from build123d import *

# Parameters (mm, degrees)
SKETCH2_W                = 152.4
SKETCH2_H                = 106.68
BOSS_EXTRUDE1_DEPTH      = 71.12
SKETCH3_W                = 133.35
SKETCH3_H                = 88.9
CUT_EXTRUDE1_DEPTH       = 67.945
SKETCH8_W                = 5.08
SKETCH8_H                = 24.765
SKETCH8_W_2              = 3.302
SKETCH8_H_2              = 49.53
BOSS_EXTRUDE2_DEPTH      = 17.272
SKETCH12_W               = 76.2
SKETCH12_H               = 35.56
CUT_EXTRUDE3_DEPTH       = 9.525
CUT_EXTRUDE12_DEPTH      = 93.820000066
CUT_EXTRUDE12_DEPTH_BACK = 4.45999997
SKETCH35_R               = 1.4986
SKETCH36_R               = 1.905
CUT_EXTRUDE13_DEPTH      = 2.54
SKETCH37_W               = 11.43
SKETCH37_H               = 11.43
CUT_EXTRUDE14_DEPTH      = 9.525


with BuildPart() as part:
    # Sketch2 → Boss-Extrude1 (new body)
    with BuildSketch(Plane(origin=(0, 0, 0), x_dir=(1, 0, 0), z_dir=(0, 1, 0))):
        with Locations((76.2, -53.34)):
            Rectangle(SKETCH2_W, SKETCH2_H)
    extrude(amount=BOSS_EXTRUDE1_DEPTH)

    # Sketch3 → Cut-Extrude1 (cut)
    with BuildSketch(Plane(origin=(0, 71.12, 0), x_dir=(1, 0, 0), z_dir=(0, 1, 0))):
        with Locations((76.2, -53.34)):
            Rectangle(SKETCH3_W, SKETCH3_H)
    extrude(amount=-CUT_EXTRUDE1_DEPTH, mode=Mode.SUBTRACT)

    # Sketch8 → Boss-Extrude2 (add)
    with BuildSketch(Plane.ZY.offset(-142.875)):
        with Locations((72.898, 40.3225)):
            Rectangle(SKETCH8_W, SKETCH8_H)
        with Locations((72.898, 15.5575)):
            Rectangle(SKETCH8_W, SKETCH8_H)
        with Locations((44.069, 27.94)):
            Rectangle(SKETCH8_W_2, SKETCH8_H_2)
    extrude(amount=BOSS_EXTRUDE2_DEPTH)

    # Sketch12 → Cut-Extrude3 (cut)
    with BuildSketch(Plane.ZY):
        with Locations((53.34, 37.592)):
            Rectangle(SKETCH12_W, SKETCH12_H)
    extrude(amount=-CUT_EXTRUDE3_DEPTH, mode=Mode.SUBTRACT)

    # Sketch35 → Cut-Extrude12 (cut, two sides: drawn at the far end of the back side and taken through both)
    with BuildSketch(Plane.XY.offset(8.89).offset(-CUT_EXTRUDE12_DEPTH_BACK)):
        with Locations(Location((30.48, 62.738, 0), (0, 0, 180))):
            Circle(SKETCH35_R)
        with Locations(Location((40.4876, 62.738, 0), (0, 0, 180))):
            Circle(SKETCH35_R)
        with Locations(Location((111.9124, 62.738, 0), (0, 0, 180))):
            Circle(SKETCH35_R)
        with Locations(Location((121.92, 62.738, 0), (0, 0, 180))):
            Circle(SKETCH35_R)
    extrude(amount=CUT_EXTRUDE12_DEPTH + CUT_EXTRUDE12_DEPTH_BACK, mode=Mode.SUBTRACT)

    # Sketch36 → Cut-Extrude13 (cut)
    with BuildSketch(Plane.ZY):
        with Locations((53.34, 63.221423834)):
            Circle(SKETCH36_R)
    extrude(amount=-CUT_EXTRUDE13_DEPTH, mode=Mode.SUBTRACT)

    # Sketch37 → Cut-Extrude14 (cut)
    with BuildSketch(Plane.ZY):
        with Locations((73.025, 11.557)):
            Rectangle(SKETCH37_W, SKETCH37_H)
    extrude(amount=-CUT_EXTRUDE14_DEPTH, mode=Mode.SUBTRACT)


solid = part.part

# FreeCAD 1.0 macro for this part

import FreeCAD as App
import Part
import Sketcher
from FreeCAD import Vector
Q = App.Units.Quantity


def add_polygon(sketch, points):
    """Adds a closed chain of lines whose ends are joined by coincident constraints."""
    first, n = sketch.GeometryCount, len(points)
    for a, b in zip(points, points[1:] + points[:1]):
        sketch.addGeometry(Part.LineSegment(App.Vector(*a, 0), App.Vector(*b, 0)), False)
    for i in range(n):
        sketch.addConstraint(Sketcher.Constraint("Coincident", first + i, 2, first + (i + 1) % n, 1))

doc = App.newDocument("Part")
body = doc.addObject("PartDesign::Body", "Body")

# Sketch on XZ plane
sketch1 = doc.addObject("Sketcher::SketchObject", "Sketch")
body.addObject(sketch1)
sketch1.AttachmentSupport = (doc.XZ_Plane, [""])
sketch1.MapMode = "FlatFace"
add_polygon(sketch1, [(0, 0), (0, 106.68), (152.4, 106.68), (152.4, 0)])  # lines 0-3
sketch1.addConstraint([
    Sketcher.Constraint("Vertical", 0),
    Sketcher.Constraint("Horizontal", 1),
    Sketcher.Constraint("Vertical", 2),
    Sketcher.Constraint("Horizontal", 3),
    Sketcher.Constraint("Coincident", 3, 2, -1, 1),
    Sketcher.Constraint("DistanceX", 1, 1, 1, 2, Q("6 in")),
    Sketcher.Constraint("DistanceY", 0, 1, 0, 2, Q("4.2 in")),
])
pad1 = doc.addObject("PartDesign::Pad", "Pad")
body.addObject(pad1)
pad1.Profile = sketch1
pad1.Length = Q("2.8 in")
pad1.Reversed = True

# Sketch on XZ plane
sketch2 = doc.addObject("Sketcher::SketchObject", "Sketch001")
body.addObject(sketch2)
sketch2.AttachmentSupport = (doc.XZ_Plane, [""])
sketch2.MapMode = "FlatFace"
sketch2.AttachmentOffset = App.Placement(Vector(0, 0, -2.8 * 25.4), App.Rotation())
add_polygon(sketch2, [(9.525, 8.89), (9.525, 97.79), (142.875, 97.79), (142.875, 8.89)])  # lines 0-3
sketch2.addConstraint([
    Sketcher.Constraint("Vertical", 0),
    Sketcher.Constraint("Horizontal", 1),
    Sketcher.Constraint("Vertical", 2),
    Sketcher.Constraint("Horizontal", 3),
    Sketcher.Constraint("DistanceY", 0, 1, 0, 2, Q("3.5 in")),
    Sketcher.Constraint("DistanceX", 1, 1, 1, 2, Q("5.25 in")),
    Sketcher.Constraint("DistanceY", -1, 1, 0, 2, Q("3.85 in")),
    Sketcher.Constraint("DistanceX", -1, 1, 0, 2, Q("0.375 in")),
])
pocket1 = doc.addObject("PartDesign::Pocket", "Pocket")
body.addObject(pocket1)
pocket1.Profile = sketch2
pocket1.Length = Q("2.675 in")
pocket1.Reversed = True

# Sketch on YZ plane
sketch3 = doc.addObject("Sketcher::SketchObject", "Sketch002")
body.addObject(sketch3)
sketch3.AttachmentSupport = (doc.YZ_Plane, [""])
sketch3.MapMode = "FlatFace"
sketch3.AttachmentOffset = App.Placement(Vector(0, 0, 5.625 * 25.4), App.Rotation())
add_polygon(sketch3, [(52.705, 70.358), (3.175, 70.358), (3.175, 75.438), (52.705, 75.438)])  # lines 0-3
add_polygon(sketch3, [(52.705, 42.418), (3.175, 42.418), (3.175, 45.72), (52.705, 45.72)])  # lines 4-7
sketch3.addConstraint([
    Sketcher.Constraint("Horizontal", 0),
    Sketcher.Constraint("Vertical", 1),
    Sketcher.Constraint("Horizontal", 2),
    Sketcher.Constraint("Vertical", 3),
    Sketcher.Constraint("Horizontal", 4),
    Sketcher.Constraint("Vertical", 5),
    Sketcher.Constraint("Horizontal", 6),
    Sketcher.Constraint("Vertical", 7),
    Sketcher.Constraint("Vertical", 1, 2, 4, 2),
    Sketcher.Constraint("Vertical", 3, 2, 6, 2),
    Sketcher.Constraint("DistanceY", 1, 1, 1, 2, Q("0.2 in")),
    Sketcher.Constraint("DistanceX", 0, 2, 0, 1, Q("1.95 in")),
    Sketcher.Constraint("DistanceY", 5, 1, 5, 2, Q("0.13 in")),
    Sketcher.Constraint("DistanceY", -1, 1, 5, 2, Q("1.8 in")),
    Sketcher.Constraint("DistanceY", 4, 2, 0, 2, Q("1.1 in")),
    Sketcher.Constraint("DistanceX", -1, 1, 0, 2, Q("0.125 in")),
])
pad2 = doc.addObject("PartDesign::Pad", "Pad001")
body.addObject(pad2)
pad2.Profile = sketch3
pad2.Length = Q("0.68 in")
pad2.Reversed = True

# Sketch on YZ plane
sketch4 = doc.addObject("Sketcher::SketchObject", "Sketch003")
body.addObject(sketch4)
sketch4.AttachmentSupport = (doc.YZ_Plane, [""])
sketch4.MapMode = "FlatFace"
add_polygon(sketch4, [(55.372, 15.24), (19.812, 15.24), (19.812, 91.44), (55.372, 91.44)])  # lines 0-3
sketch4.addConstraint([
    Sketcher.Constraint("Horizontal", 0),
    Sketcher.Constraint("Vertical", 1),
    Sketcher.Constraint("Horizontal", 2),
    Sketcher.Constraint("Vertical", 3),
    Sketcher.Constraint("DistanceY", 1, 1, 1, 2, Q("3 in")),
    Sketcher.Constraint("DistanceX", 0, 2, 0, 1, Q("1.4 in")),
    Sketcher.Constraint("DistanceY", -1, 1, 0, 2, Q("0.6 in")),
    Sketcher.Constraint("DistanceX", -1, 1, 0, 2, Q("0.78 in")),
])
pocket2 = doc.addObject("PartDesign::Pocket", "Pocket001")
body.addObject(pocket2)
pocket2.Profile = sketch4
pocket2.Length = Q("0.375 in")
pocket2.Reversed = True

# Sketch on XY plane
sketch5 = doc.addObject("Sketcher::SketchObject", "Sketch004")
body.addObject(sketch5)
sketch5.AttachmentSupport = (doc.XY_Plane, [""])
sketch5.MapMode = "FlatFace"
sketch5.AttachmentOffset = App.Placement(Vector(0, 0, 0.35 * 25.4), App.Rotation())
sketch5.addGeometry([
    Part.Circle(Vector(30.48, 62.738, 0), Vector(0, 0, 1), 1.4986),
    Part.Circle(Vector(40.4876, 62.738, 0), Vector(0, 0, 1), 1.4986),
    Part.Circle(Vector(111.9124, 62.738, 0), Vector(0, 0, 1), 1.4986),
    Part.Circle(Vector(121.92, 62.738, 0), Vector(0, 0, 1), 1.4986),
], False)
sketch5.addConstraint([
    Sketcher.Constraint("Equal", 0, 1),
    Sketcher.Constraint("Equal", 1, 2),
    Sketcher.Constraint("Equal", 2, 3),
    Sketcher.Constraint("Horizontal", 0, 3, 1, 3),
    Sketcher.Constraint("Horizontal", 1, 3, 2, 3),
    Sketcher.Constraint("Horizontal", 2, 3, 3, 3),
    Sketcher.Constraint("Diameter", 0, Q("0.118 in")),
    Sketcher.Constraint("DistanceX", -1, 1, 0, 3, Q("1.2 in")),
    Sketcher.Constraint("DistanceX", -1, 1, 3, 3, Q("4.8 in")),
    Sketcher.Constraint("DistanceY", -1, 1, 0, 3, Q("2.47 in")),
    Sketcher.Constraint("DistanceX", -1, 1, 1, 3, Q("1.594 in")),
    Sketcher.Constraint("DistanceX", -1, 1, 2, 3, Q("4.406 in")),
])
pocket3 = doc.addObject("PartDesign::Pocket", "Pocket002")
body.addObject(pocket3)
pocket3.Profile = sketch5
pocket3.Type = "TwoLengths"
pocket3.Length = 93.82
pocket3.Length2 = 4.46
pocket3.Reversed = True

# Sketch on YZ plane
sketch6 = doc.addObject("Sketcher::SketchObject", "Sketch005")
body.addObject(sketch6)
sketch6.AttachmentSupport = (doc.YZ_Plane, [""])
sketch6.MapMode = "FlatFace"
sketch6.addGeometry(Part.Circle(Vector(63.221424, 53.34, 0), Vector(0, 0, 1), 1.905), False)
sketch6.addConstraint([
    Sketcher.Constraint("Diameter", 0, Q("0.15 in")),
    Sketcher.Constraint("DistanceY", -1, 1, 0, 3, Q("2.1 in")),
    Sketcher.Constraint("DistanceX", -1, 1, 0, 3, 63.221424),
])
pocket4 = doc.addObject("PartDesign::Pocket", "Pocket003")
body.addObject(pocket4)
pocket4.Profile = sketch6
pocket4.Length = Q("0.1 in")
pocket4.Reversed = True

# Sketch on YZ plane
sketch7 = doc.addObject("Sketcher::SketchObject", "Sketch006")
body.addObject(sketch7)
sketch7.AttachmentSupport = (doc.YZ_Plane, [""])
sketch7.MapMode = "FlatFace"
add_polygon(sketch7, [(17.272, 67.31), (5.842, 67.31), (5.842, 78.74), (17.272, 78.74)])  # lines 0-3
sketch7.addConstraint([
    Sketcher.Constraint("Horizontal", 0),
    Sketcher.Constraint("Vertical", 1),
    Sketcher.Constraint("Horizontal", 2),
    Sketcher.Constraint("Vertical", 3),
    Sketcher.Constraint("Equal", 2, 1),
    Sketcher.Constraint("DistanceX", 0, 2, 0, 1, Q("0.45 in")),
    Sketcher.Constraint("DistanceY", -1, 1, 1, 2, Q("3.1 in")),
    Sketcher.Constraint("DistanceX", -1, 1, 0, 2, Q("0.23 in")),
])
pocket5 = doc.addObject("PartDesign::Pocket", "Pocket004")
body.addObject(pocket5)
pocket5.Profile = sketch7
pocket5.Length = Q("0.375 in")
pocket5.Reversed = True

doc.recompute()
